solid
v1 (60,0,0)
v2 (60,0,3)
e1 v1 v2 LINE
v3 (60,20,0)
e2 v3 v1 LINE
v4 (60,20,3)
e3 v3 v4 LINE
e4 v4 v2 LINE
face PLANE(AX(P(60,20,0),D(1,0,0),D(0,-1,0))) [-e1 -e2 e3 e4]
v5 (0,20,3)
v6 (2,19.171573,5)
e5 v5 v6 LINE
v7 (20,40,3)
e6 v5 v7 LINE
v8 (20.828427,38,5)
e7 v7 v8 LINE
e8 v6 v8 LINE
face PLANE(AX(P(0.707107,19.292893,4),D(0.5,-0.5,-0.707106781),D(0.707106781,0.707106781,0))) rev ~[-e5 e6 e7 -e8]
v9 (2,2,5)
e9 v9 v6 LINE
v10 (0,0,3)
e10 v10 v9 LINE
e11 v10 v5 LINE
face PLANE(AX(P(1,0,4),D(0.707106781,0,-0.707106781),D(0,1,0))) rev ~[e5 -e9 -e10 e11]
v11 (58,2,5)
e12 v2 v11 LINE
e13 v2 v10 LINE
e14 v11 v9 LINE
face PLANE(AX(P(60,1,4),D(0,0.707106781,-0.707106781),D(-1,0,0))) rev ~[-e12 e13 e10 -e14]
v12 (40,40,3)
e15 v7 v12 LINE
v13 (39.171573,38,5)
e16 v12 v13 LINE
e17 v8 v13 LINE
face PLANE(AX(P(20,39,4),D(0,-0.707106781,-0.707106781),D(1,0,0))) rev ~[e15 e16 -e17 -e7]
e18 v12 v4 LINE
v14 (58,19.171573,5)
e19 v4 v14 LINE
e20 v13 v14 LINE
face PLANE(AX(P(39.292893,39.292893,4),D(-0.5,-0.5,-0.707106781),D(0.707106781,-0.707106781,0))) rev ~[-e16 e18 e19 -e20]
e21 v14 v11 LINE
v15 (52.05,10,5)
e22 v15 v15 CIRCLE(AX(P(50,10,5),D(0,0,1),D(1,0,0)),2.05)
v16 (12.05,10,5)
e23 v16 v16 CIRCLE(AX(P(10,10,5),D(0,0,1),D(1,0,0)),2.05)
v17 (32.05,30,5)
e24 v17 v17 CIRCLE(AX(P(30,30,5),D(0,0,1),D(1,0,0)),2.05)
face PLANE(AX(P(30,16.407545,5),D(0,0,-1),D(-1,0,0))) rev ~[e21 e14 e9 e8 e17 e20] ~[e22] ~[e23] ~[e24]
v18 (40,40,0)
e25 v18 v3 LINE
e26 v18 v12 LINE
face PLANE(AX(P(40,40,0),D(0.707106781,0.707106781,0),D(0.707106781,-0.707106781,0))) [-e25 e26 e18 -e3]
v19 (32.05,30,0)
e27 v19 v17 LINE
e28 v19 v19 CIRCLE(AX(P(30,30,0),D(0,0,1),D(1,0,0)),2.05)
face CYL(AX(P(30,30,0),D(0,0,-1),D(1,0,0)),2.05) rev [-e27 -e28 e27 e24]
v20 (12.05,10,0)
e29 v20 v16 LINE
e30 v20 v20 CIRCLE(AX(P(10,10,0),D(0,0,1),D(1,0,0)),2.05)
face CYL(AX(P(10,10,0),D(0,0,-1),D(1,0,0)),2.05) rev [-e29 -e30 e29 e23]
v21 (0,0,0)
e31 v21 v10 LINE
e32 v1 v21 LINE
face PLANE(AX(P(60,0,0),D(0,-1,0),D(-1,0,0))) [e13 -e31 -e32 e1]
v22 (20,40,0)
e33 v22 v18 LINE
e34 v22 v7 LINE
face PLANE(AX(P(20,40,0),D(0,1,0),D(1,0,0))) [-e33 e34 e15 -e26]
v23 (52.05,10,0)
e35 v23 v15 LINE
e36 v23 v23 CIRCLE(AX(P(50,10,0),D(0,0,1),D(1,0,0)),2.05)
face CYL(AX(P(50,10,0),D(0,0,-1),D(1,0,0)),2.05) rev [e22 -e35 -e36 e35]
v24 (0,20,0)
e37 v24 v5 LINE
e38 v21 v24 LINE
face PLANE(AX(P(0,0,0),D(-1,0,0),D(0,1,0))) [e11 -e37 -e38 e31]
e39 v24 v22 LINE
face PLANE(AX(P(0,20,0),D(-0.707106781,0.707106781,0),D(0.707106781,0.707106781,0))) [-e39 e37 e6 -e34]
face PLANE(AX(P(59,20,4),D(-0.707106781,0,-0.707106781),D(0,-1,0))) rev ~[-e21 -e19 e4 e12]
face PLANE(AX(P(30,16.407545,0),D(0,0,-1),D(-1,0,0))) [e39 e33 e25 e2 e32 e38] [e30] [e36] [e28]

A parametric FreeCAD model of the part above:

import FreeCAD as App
import Part
import Sketcher

V = App.Vector
Q = App.Units.Quantity


def edges_at(feature, points):
    """Names of the edges that pass closest to the given points."""
    edges = feature.Shape.Edges
    near = lambda p: min(range(len(edges)), key=lambda i: edges[i].distToShape(Part.Vertex(*p))[0])
    return sorted({f"Edge{near(p) + 1}" for p in points})


def add_polygon(sketch, points):
    """Adds a closed chain of lines whose ends are joined by coincident constraints."""
    first, n = sketch.GeometryCount, len(points)
    for a, b in zip(points, points[1:] + points[:1]):
        sketch.addGeometry(Part.LineSegment(App.Vector(*a, 0), App.Vector(*b, 0)), False)
    for i in range(n):
        sketch.addConstraint(Sketcher.Constraint("Coincident", first + i, 2, first + (i + 1) % n, 1))

doc = App.newDocument("Part")
params = doc.addObject("Spreadsheet::Sheet", "Params")
for row, (alias, value) in enumerate([
    ("sketch1_diameter", "4.1 mm"),
    ("sketch1_width", "60 mm"),
    ("sketch1_width2", "20 mm"),
    ("pad1_length", "5 mm"),
    ("chamfer_size", "2 mm"),
], start=1):
    params.set(f"A{row}", alias)
    params.set(f"B{row}", "=" + value)
    params.setAlias(f"B{row}", alias)

body = doc.addObject("PartDesign::Body", "Body")

# Sketch on XY plane
sketch1 = body.newObject("Sketcher::SketchObject", "Sketch")
sketch1.AttachmentSupport = (doc.getObject("XY_Plane"), [""])
sketch1.MapMode = "FlatFace"
add_polygon(sketch1, [(0, 20), (0, 0), (60, 0), (60, 20), (40, 40), (20, 40)])  # lines 0-5
sketch1.addGeometry(Part.Circle(V(50, 10, 0), V(0, 0, 1), 2.05), False)  # 6
sketch1.addGeometry(Part.Circle(V(10, 10, 0), V(0, 0, 1), 2.05), False)  # 7
sketch1.addGeometry(Part.Circle(V(30, 30, 0), V(0, 0, 1), 2.05), False)  # 8
sketch1.addConstraint(Sketcher.Constraint("Vertical", 0))
sketch1.addConstraint(Sketcher.Constraint("Horizontal", 1))
sketch1.addConstraint(Sketcher.Constraint("Vertical", 2))
sketch1.addConstraint(Sketcher.Constraint("Horizontal", 4))
sketch1.addConstraint(Sketcher.Constraint("Coincident", 0, 2, -1, 1))
sketch1.addConstraint(Sketcher.Constraint("Equal", 6, 7))
sketch1.addConstraint(Sketcher.Constraint("Equal", 7, 8))
sketch1.addConstraint(Sketcher.Constraint("Perpendicular", 3, 5))
sketch1.addConstraint(Sketcher.Constraint("Horizontal", 6, 3, 7, 3))
sketch1.addConstraint(Sketcher.Constraint("Horizontal", 2, 2, 5, 2))
sketch1.addConstraint(Sketcher.Constraint("Equal", 4, 0))
sketch1.addConstraint(Sketcher.Constraint("Equal", 3, 5))
sketch1.addConstraint(Sketcher.Constraint("Diameter", 6, Q("4.1 mm")))
sketch1.addConstraint(Sketcher.Constraint("DistanceX", 1, 1, 1, 2, Q("60 mm")))
sketch1.addConstraint(Sketcher.Constraint("DistanceX", 4, 2, 4, 1, Q("20 mm")))
sketch1.addConstraint(Sketcher.Constraint("DistanceX", -1, 1, 6, 3, Q("50 mm")))
sketch1.addConstraint(Sketcher.Constraint("DistanceY", -1, 1, 6, 3, Q("10 mm")))
sketch1.addConstraint(Sketcher.Constraint("DistanceX", -1, 1, 7, 3, Q("10 mm")))
sketch1.addConstraint(Sketcher.Constraint("DistanceX", -1, 1, 8, 3, Q("30 mm")))
sketch1.addConstraint(Sketcher.Constraint("DistanceY", -1, 1, 8, 3, Q("30 mm")))
sketch1.setExpression("Constraints[18]", "Params.sketch1_diameter")
sketch1.setExpression("Constraints[19]", "Params.sketch1_width")
sketch1.setExpression("Constraints[20]", "Params.sketch1_width2")
pad1 = body.newObject("PartDesign::Pad", "Pad")
pad1.Profile = sketch1
pad1.setExpression("Length", "Params.pad1_length")
doc.recompute()

chamfer = body.newObject("PartDesign::Chamfer", "Chamfer")
chamfer.Base = (pad1, edges_at(pad1, [
    (0, 10, 5),
    (10, 30, 5),
    (30, 40, 5),
    (50, 30, 5),
    (60, 10, 5),
    (30, 0, 5),
]))
chamfer.setExpression("Size", "Params.chamfer_size")

doc.recompute()
